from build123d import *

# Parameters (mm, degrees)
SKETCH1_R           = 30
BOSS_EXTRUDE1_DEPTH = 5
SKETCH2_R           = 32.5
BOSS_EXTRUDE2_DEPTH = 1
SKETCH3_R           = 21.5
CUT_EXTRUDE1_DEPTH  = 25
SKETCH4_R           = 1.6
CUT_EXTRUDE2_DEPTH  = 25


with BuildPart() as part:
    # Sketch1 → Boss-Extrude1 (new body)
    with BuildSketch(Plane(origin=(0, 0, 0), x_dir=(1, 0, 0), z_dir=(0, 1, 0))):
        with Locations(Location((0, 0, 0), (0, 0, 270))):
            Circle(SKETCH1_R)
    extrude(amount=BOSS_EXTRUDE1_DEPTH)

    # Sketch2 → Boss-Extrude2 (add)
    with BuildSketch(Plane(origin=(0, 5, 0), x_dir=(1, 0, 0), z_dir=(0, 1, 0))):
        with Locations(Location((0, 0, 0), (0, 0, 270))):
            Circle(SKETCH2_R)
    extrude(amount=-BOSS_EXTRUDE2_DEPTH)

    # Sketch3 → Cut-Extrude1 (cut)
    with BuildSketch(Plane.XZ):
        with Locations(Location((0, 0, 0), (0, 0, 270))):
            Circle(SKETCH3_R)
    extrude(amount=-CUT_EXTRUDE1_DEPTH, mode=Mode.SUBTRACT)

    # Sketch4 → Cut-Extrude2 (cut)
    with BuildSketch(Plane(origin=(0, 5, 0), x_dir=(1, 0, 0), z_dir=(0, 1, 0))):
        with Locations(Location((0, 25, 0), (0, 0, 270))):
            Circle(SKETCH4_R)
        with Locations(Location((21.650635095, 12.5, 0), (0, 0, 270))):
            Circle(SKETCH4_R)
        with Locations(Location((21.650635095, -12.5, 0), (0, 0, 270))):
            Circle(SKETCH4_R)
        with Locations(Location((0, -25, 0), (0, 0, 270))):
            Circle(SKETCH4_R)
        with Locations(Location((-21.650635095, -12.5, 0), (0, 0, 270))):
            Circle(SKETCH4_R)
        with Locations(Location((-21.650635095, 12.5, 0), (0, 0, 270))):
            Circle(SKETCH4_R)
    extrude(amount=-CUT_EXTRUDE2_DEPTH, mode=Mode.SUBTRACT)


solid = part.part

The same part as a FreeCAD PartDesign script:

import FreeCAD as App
import Part
import Sketcher

V = App.Vector

doc = App.newDocument("Part")
body = doc.addObject("PartDesign::Body", "Body")

sketch1 = body.newObject("Sketcher::SketchObject", "Sketch")
sketch1.AttachmentSupport = (doc.getObject("XZ_Plane"), [""])
sketch1.MapMode = "FlatFace"
sketch1.addGeometry(Part.Circle(V(0, 0, 0), V(0, 0, 1), 30), False)
sketch1.addConstraint([
    Sketcher.Constraint("Coincident", 0, 3, -1, 1),
    Sketcher.Constraint("Diameter", 0, 60.0),
])
pad1 = body.newObject("PartDesign::Pad", "Pad")
pad1.Profile = sketch1
pad1.Length = 5
pad1.Reversed = True

sketch2 = body.newObject("Sketcher::SketchObject", "Sketch001")
sketch2.AttachmentSupport = (doc.getObject("XZ_Plane"), [""])
sketch2.MapMode = "FlatFace"
sketch2.AttachmentOffset = App.Placement(V(0, 0, -5), App.Rotation())
sketch2.addGeometry(Part.Circle(V(0, 0, 0), V(0, 0, 1), 32.5), False)
sketch2.addConstraint([
    Sketcher.Constraint("Coincident", 0, 3, -1, 1),
    Sketcher.Constraint("Diameter", 0, 65.0),
])
pad2 = body.newObject("PartDesign::Pad", "Pad001")
pad2.Profile = sketch2
pad2.Length = 1

sketch3 = body.newObject("Sketcher::SketchObject", "Sketch002")
sketch3.AttachmentSupport = (doc.getObject("XZ_Plane"), [""])
sketch3.MapMode = "FlatFace"
sketch3.addGeometry(Part.Circle(V(0, 0, 0), V(0, 0, 1), 21.5), False)
sketch3.addConstraint([
    Sketcher.Constraint("Coincident", 0, 3, -1, 1),
    Sketcher.Constraint("Diameter", 0, 43.0),
])
pocket1 = body.newObject("PartDesign::Pocket", "Pocket")
pocket1.Profile = sketch3
pocket1.Length = 25

sketch4 = body.newObject("Sketcher::SketchObject", "Sketch003")
sketch4.AttachmentSupport = (doc.getObject("XZ_Plane"), [""])
sketch4.MapMode = "FlatFace"
sketch4.AttachmentOffset = App.Placement(V(0, 0, -5), App.Rotation())
sketch4.addGeometry([
    Part.Circle(V(0, -25, 0), V(0, 0, 1), 1.6),
    Part.Circle(V(21.650635, -12.5, 0), V(0, 0, 1), 1.6),
    Part.Circle(V(21.650635, 12.5, 0), V(0, 0, 1), 1.6),
    Part.Circle(V(0, 25, 0), V(0, 0, 1), 1.6),
    Part.Circle(V(-21.650635, 12.5, 0), V(0, 0, 1), 1.6),
    Part.Circle(V(-21.650635, -12.5, 0), V(0, 0, 1), 1.6),
], False)
sketch4.addConstraint([
    Sketcher.Constraint("Equal", 0, 1),
    Sketcher.Constraint("Equal", 1, 2),
    Sketcher.Constraint("Equal", 2, 3),
    Sketcher.Constraint("Equal", 3, 4),
    Sketcher.Constraint("Equal", 4, 5),
    Sketcher.Constraint("Symmetric", 0, 3, 3, 3, -1, 1),
    Sketcher.Constraint("Symmetric", 1, 3, 4, 3, -1, 1),
    Sketcher.Constraint("Symmetric", 2, 3, 5, 3, -1, 1),
    Sketcher.Constraint("Symmetric", 2, 3, 4, 3, -2),
    Sketcher.Constraint("PointOnObject", 0, 3, -2),
    Sketcher.Constraint("Diameter", 0, 3.2),
    Sketcher.Constraint("DistanceY", 0, 3, -1, 1, 25.0),
    Sketcher.Constraint("DistanceY", 1, 3, 2, 3, 25.0),
    Sketcher.Constraint("DistanceX", 4, 3, 2, 3, 43.30127),
])
pocket2 = body.newObject("PartDesign::Pocket", "Pocket001")
pocket2.Profile = sketch4
pocket2.Length = 25
pocket2.Reversed = True

doc.recompute()
